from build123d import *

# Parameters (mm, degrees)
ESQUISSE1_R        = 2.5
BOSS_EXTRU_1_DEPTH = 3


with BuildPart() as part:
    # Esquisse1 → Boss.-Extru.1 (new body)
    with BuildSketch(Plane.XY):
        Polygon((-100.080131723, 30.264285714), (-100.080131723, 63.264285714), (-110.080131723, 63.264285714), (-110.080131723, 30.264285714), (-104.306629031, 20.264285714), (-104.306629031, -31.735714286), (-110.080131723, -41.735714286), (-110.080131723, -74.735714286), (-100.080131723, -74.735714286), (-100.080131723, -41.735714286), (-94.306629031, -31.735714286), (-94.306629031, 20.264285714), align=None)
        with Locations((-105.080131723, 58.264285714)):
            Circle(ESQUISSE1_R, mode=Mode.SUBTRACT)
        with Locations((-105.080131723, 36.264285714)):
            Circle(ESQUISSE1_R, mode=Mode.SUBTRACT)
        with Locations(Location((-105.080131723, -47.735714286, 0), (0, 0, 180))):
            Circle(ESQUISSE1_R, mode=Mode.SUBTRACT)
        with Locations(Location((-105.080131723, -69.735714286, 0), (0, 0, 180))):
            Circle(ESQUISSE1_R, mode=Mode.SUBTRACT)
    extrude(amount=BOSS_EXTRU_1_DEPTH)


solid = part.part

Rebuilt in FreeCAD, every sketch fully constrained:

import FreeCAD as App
import Part
import Sketcher
Q = App.Units.Quantity

doc = App.newDocument("Part")
params = doc.addObject("Spreadsheet::Sheet", "Params")
for row, (alias, value) in enumerate([
    ("sketch1_diameter", "5 mm"),
    ("sketch1_width", "10 mm"),
    ("sketch1_height", "33 mm"),
    ("sketch1_height2", "52 mm"),
    ("pad1_length", "3 mm"),
], start=1):
    params.set(f"A{row}", alias)
    params.set(f"B{row}", "=" + value)
    params.setAlias(f"B{row}", alias)

body = doc.addObject("PartDesign::Body", "Body")

# Sketch on XY plane
sketch1 = body.newObject("Sketcher::SketchObject", "Sketch")
sketch1.AttachmentSupport = (doc.getObject("XY_Plane"), [""])
sketch1.MapMode = "FlatFace"
sketch1.addGeometry(Part.LineSegment(App.Vector(-100.1, 30.3, 0), App.Vector(-100.1, 63.3, 0)), False)
sketch1.addGeometry(Part.LineSegment(App.Vector(-100.1, 63.3, 0), App.Vector(-110.1, 63.3, 0)), False)
sketch1.addGeometry(Part.LineSegment(App.Vector(-110.1, 63.3, 0), App.Vector(-110.1, 30.3, 0)), False)
sketch1.addGeometry(Part.LineSegment(App.Vector(-110.1, 30.3, 0), App.Vector(-104.3, 20.3, 0)), False)
sketch1.addGeometry(Part.LineSegment(App.Vector(-104.3, 20.3, 0), App.Vector(-104.3, -31.7, 0)), False)
sketch1.addGeometry(Part.LineSegment(App.Vector(-104.3, -31.7, 0), App.Vector(-110.1, -41.7, 0)), False)
sketch1.addGeometry(Part.LineSegment(App.Vector(-110.1, -41.7, 0), App.Vector(-110.1, -74.7, 0)), False)
sketch1.addGeometry(Part.LineSegment(App.Vector(-110.1, -74.7, 0), App.Vector(-100.1, -74.7, 0)), False)
sketch1.addGeometry(Part.LineSegment(App.Vector(-100.1, -74.7, 0), App.Vector(-100.1, -41.7, 0)), False)
sketch1.addGeometry(Part.LineSegment(App.Vector(-100.1, -41.7, 0), App.Vector(-94.3, -31.7, 0)), False)
sketch1.addGeometry(Part.LineSegment(App.Vector(-94.3, -31.7, 0), App.Vector(-94.3, 20.3, 0)), False)
sketch1.addGeometry(Part.LineSegment(App.Vector(-94.3, 20.3, 0), App.Vector(-100.1, 30.3, 0)), False)
sketch1.addGeometry(Part.Circle(App.Vector(-105.1, -69.7, 0), App.Vector(0, 0, 1), 2.5), False)
sketch1.addGeometry(Part.Circle(App.Vector(-105.1, -47.7, 0), App.Vector(0, 0, 1), 2.5), False)
sketch1.addGeometry(Part.Circle(App.Vector(-105.1, 36.3, 0), App.Vector(0, 0, 1), 2.5), False)
sketch1.addGeometry(Part.Circle(App.Vector(-105.1, 58.3, 0), App.Vector(0, 0, 1), 2.5), False)
sketch1.addConstraint(Sketcher.Constraint("Coincident", 0, 2, 1, 1))
sketch1.addConstraint(Sketcher.Constraint("Coincident", 1, 2, 2, 1))
sketch1.addConstraint(Sketcher.Constraint("Coincident", 2, 2, 3, 1))
sketch1.addConstraint(Sketcher.Constraint("Coincident", 3, 2, 4, 1))
sketch1.addConstraint(Sketcher.Constraint("Coincident", 4, 2, 5, 1))
sketch1.addConstraint(Sketcher.Constraint("Coincident", 5, 2, 6, 1))
sketch1.addConstraint(Sketcher.Constraint("Coincident", 6, 2, 7, 1))
sketch1.addConstraint(Sketcher.Constraint("Coincident", 7, 2, 8, 1))
sketch1.addConstraint(Sketcher.Constraint("Coincident", 8, 2, 9, 1))
sketch1.addConstraint(Sketcher.Constraint("Coincident", 9, 2, 10, 1))
sketch1.addConstraint(Sketcher.Constraint("Coincident", 10, 2, 11, 1))
sketch1.addConstraint(Sketcher.Constraint("Coincident", 11, 2, 0, 1))
sketch1.addConstraint(Sketcher.Constraint("Vertical", 0))
sketch1.addConstraint(Sketcher.Constraint("Horizontal", 1))
sketch1.addConstraint(Sketcher.Constraint("Vertical", 2))
sketch1.addConstraint(Sketcher.Constraint("Vertical", 4))
sketch1.addConstraint(Sketcher.Constraint("Vertical", 6))
sketch1.addConstraint(Sketcher.Constraint("Horizontal", 7))
sketch1.addConstraint(Sketcher.Constraint("Vertical", 8))
sketch1.addConstraint(Sketcher.Constraint("Vertical", 10))
sketch1.addConstraint(Sketcher.Constraint("Equal", 12, 13))
sketch1.addConstraint(Sketcher.Constraint("Equal", 13, 14))
sketch1.addConstraint(Sketcher.Constraint("Equal", 14, 15))
sketch1.addConstraint(Sketcher.Constraint("Parallel", 5, 9))
sketch1.addConstraint(Sketcher.Constraint("Parallel", 3, 11))
sketch1.addConstraint(Sketcher.Constraint("Horizontal", 5, 2, 8, 2))
sketch1.addConstraint(Sketcher.Constraint("Horizontal", 4, 2, 9, 2))
sketch1.addConstraint(Sketcher.Constraint("Horizontal", 3, 2, 10, 2))
sketch1.addConstraint(Sketcher.Constraint("Horizontal", 2, 2, 11, 2))
sketch1.addConstraint(Sketcher.Constraint("Vertical", 12, 3, 13, 3))
sketch1.addConstraint(Sketcher.Constraint("Vertical", 13, 3, 14, 3))
sketch1.addConstraint(Sketcher.Constraint("Vertical", 14, 3, 15, 3))
sketch1.addConstraint(Sketcher.Constraint("Vertical", 2, 2, 5, 2))
sketch1.addConstraint(Sketcher.Constraint("Equal", 2, 6))
sketch1.addConstraint(Sketcher.Constraint("Equal", 3, 5))
sketch1.addConstraint(Sketcher.Constraint("Diameter", 12, 5.0))
sketch1.addConstraint(Sketcher.Constraint("DistanceX", 1, 2, 1, 1, 10.0))
sketch1.addConstraint(Sketcher.Constraint("DistanceY", 0, 1, 0, 2, 33.0))
sketch1.addConstraint(Sketcher.Constraint("DistanceY", 4, 2, 4, 1, 52.0))
sketch1.addConstraint(Sketcher.Constraint("Angle", 3, Q("-60 deg")))
sketch1.addConstraint(Sketcher.Constraint("DistanceY", 12, 3, 13, 3, 22.0))
sketch1.addConstraint(Sketcher.Constraint("DistanceY", 13, 3, 14, 3, 84.0))
sketch1.addConstraint(Sketcher.Constraint("DistanceY", 14, 3, 15, 3, 22.0))
sketch1.addConstraint(Sketcher.Constraint("DistanceX", 15, 3, 0, 2, 5.0))
sketch1.addConstraint(Sketcher.Constraint("DistanceY", 15, 3, 0, 2, 5.0))
sketch1.addConstraint(Sketcher.Constraint("DistanceY", 3, 2, 2, 2, 10.0))
sketch1.addConstraint(Sketcher.Constraint("DistanceX", 12, 3, -1, 1, 105.080132))
sketch1.addConstraint(Sketcher.Constraint("DistanceY", 12, 3, -1, 1, 69.735714))
sketch1.setExpression("Constraints[35]", "Params.sketch1_diameter")
sketch1.setExpression("Constraints[36]", "Params.sketch1_width")
sketch1.setExpression("Constraints[37]", "Params.sketch1_height")
sketch1.setExpression("Constraints[38]", "Params.sketch1_height2")
pad1 = body.newObject("PartDesign::Pad", "Pad")
pad1.Profile = sketch1
pad1.setExpression("Length", "Params.pad1_length")

doc.recompute()
